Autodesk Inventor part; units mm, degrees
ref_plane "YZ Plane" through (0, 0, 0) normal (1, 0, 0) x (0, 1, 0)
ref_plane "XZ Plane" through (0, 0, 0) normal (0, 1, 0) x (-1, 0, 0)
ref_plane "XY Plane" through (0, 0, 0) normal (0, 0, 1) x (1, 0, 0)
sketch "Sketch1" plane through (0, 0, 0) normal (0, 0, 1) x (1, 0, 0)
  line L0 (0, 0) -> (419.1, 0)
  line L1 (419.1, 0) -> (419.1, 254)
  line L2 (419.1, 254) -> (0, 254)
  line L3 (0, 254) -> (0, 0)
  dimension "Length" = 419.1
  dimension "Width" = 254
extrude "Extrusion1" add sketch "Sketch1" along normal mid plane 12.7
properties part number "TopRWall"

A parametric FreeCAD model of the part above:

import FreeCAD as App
import Part
import Sketcher
from FreeCAD import Vector
Q = App.Units.Quantity


def add_polygon(sketch, points):
    """Adds a closed chain of lines whose ends are joined by coincident constraints."""
    first, n = sketch.GeometryCount, len(points)
    for a, b in zip(points, points[1:] + points[:1]):
        sketch.addGeometry(Part.LineSegment(App.Vector(*a, 0), App.Vector(*b, 0)), False)
    for i in range(n):
        sketch.addConstraint(Sketcher.Constraint("Coincident", first + i, 2, first + (i + 1) % n, 1))

doc = App.newDocument("Part")
body = doc.addObject("PartDesign::Body", "Body")

sketch1 = doc.addObject("Sketcher::SketchObject", "Sketch")
body.addObject(sketch1)
sketch1.AttachmentSupport = (doc.XY_Plane, [""])
sketch1.MapMode = "FlatFace"
add_polygon(sketch1, [(0, 254), (0, 0), (419.1, 0), (419.1, 254)])
sketch1.addConstraint([
    Sketcher.Constraint("Vertical", 0),
    Sketcher.Constraint("Horizontal", 1),
    Sketcher.Constraint("Vertical", 2),
    Sketcher.Constraint("Horizontal", 3),
    Sketcher.Constraint("Coincident", 0, 2, -1, 1),
    Sketcher.Constraint("DistanceY", 0, 2, 0, 1, Q("10 in")),
    Sketcher.Constraint("DistanceX", 1, 1, 1, 2, Q("16.5 in")),
])
pad1 = doc.addObject("PartDesign::Pad", "Pad")
body.addObject(pad1)
pad1.Profile = sketch1
pad1.Length = Q("0.5 in")
pad1.Midplane = True

doc.recompute()
